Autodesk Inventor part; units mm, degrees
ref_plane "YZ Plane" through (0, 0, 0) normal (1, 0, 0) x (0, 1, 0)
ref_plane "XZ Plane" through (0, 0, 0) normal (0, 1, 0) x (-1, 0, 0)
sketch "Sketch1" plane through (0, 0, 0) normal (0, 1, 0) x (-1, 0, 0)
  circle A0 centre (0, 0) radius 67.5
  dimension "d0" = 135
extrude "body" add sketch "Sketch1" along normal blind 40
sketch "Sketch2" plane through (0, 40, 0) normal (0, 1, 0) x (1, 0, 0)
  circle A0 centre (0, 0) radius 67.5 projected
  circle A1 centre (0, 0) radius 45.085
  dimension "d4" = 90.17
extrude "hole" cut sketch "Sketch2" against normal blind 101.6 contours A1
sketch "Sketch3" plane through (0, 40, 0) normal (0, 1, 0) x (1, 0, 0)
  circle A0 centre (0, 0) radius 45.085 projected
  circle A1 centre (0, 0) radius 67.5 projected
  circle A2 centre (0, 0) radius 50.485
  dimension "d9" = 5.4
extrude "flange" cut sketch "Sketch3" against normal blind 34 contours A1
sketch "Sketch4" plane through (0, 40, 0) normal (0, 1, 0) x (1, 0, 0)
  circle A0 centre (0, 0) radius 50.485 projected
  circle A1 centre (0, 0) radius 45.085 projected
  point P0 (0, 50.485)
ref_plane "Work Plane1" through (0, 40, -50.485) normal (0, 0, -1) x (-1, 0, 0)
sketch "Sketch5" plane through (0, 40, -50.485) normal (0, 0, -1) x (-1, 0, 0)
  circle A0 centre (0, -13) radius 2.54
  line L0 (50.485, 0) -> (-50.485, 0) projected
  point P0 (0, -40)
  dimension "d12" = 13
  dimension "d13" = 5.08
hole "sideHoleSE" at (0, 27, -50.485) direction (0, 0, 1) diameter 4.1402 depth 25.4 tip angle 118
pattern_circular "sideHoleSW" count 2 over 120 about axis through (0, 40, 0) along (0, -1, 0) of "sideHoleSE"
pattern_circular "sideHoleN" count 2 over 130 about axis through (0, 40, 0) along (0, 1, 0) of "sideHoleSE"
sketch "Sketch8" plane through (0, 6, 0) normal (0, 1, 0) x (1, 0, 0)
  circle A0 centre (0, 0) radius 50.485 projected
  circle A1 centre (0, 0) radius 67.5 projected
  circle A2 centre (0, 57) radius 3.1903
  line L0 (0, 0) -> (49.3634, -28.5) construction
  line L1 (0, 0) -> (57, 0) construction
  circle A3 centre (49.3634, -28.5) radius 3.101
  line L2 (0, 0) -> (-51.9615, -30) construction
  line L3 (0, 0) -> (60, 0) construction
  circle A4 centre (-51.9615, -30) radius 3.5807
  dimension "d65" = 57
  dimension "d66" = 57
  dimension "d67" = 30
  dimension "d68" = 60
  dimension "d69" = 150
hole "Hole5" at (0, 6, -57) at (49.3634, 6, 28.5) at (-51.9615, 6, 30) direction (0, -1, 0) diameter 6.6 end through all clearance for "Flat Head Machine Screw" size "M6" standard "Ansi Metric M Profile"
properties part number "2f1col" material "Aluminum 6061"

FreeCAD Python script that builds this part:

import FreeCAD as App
import Part
import Sketcher
Q = App.Units.Quantity

doc = App.newDocument("Part")
body = doc.addObject("PartDesign::Body", "Body")

# Sketch on XZ plane
sketch1 = body.newObject("Sketcher::SketchObject", "Sketch")
sketch1.AttachmentSupport = (doc.getObject("XZ_Plane"), [""])
sketch1.MapMode = "FlatFace"
sketch1.addGeometry(Part.Circle(App.Vector(0, 0, 0), App.Vector(0, 0, 1), 68), False)
sketch1.addConstraint(Sketcher.Constraint("Coincident", 0, 3, -1, 1))
sketch1.addConstraint(Sketcher.Constraint("Diameter", 0, Q("135 mm")))
pad1 = body.newObject("PartDesign::Pad", "Pad")
pad1.Profile = sketch1
pad1.Length = Q("1.5748031 in")
pad1.Reversed = True

# Sketch on XZ plane
sketch2 = body.newObject("Sketcher::SketchObject", "Sketch001")
sketch2.AttachmentSupport = (doc.getObject("XZ_Plane"), [""])
sketch2.MapMode = "FlatFace"
sketch2.AttachmentOffset = App.Placement(App.Vector(0, 0, -1.5748031 * 25.4), App.Rotation())
sketch2.addGeometry(Part.Circle(App.Vector(0, 0, 0), App.Vector(0, 0, 1), 45), False)
sketch2.addConstraint(Sketcher.Constraint("Coincident", 0, 3, -1, 1))
sketch2.addConstraint(Sketcher.Constraint("Diameter", 0, Q("3.55 in")))
pocket1 = body.newObject("PartDesign::Pocket", "Pocket")
pocket1.Profile = sketch2
pocket1.Length = Q("4 in")
pocket1.Reversed = True

# Sketch on XZ plane
sketch3 = body.newObject("Sketcher::SketchObject", "Sketch002")
sketch3.AttachmentSupport = (doc.getObject("XZ_Plane"), [""])
sketch3.MapMode = "FlatFace"
sketch3.AttachmentOffset = App.Placement(App.Vector(0, 0, -1.5748031 * 25.4), App.Rotation())
sketch3.addGeometry(Part.Circle(App.Vector(0, 0, 0), App.Vector(0, 0, 1), 68), False)
sketch3.addGeometry(Part.Circle(App.Vector(0, 0, 0), App.Vector(0, 0, 1), 50), False)
sketch3.addConstraint(Sketcher.Constraint("Coincident", 0, 3, -1, 1))
sketch3.addConstraint(Sketcher.Constraint("Coincident", 1, 3, -1, 1))
sketch3.addConstraint(Sketcher.Constraint("Diameter", 1, Q("3.9752 in")))
sketch3.addConstraint(Sketcher.Constraint("Diameter", 0, Q("135 mm")))
pocket2 = body.newObject("PartDesign::Pocket", "Pocket001")
pocket2.Profile = sketch3
pocket2.Length = 34
pocket2.Reversed = True

# Sketch on XY plane
sketch4 = body.newObject("Sketcher::SketchObject", "Sketch003")
sketch4.AttachmentSupport = (doc.getObject("XY_Plane"), [""])
sketch4.MapMode = "FlatFace"
sketch4.AttachmentOffset = App.Placement(App.Vector(0, 0, -1.9875984 * 25.4), App.Rotation())
sketch4.addGeometry(Part.Circle(App.Vector(0, 27, 0), App.Vector(0, 0, 1), 2.1), False)
sketch4.addConstraint(Sketcher.Constraint("PointOnObject", 0, 3, -2))
sketch4.addConstraint(Sketcher.Constraint("Diameter", 0, Q("0.163 in")))
sketch4.addConstraint(Sketcher.Constraint("DistanceY", -1, 1, 0, 3, Q("1.063 in")))
doc.recompute()
hole = body.newObject("PartDesign::Hole", "Hole")
hole.Profile = sketch4
hole.ThreadType = "None"
hole.Diameter = Q("0.163 in")
hole.DepthType = "Dimension"
hole.Depth = Q("1 in")
hole.DrillPoint = "Angled"
hole.DrillPointAngle = 118
hole.Reversed = True
doc.recompute()

polarpattern = body.newObject("PartDesign::PolarPattern", "PolarPattern")
polarpattern.Originals = [hole]
polarpattern.Axis = (doc.getObject("Y_Axis"), [""])
polarpattern.Angle = 120
polarpattern.Occurrences = 2
polarpattern.Reversed = True
body.Tip = polarpattern
doc.recompute()

polarpattern2 = body.newObject("PartDesign::PolarPattern", "PolarPattern001")
polarpattern2.Originals = [hole]
polarpattern2.Axis = (doc.getObject("Y_Axis"), [""])
polarpattern2.Angle = 130
polarpattern2.Occurrences = 2
body.Tip = polarpattern2

# Sketch on XZ plane
sketch5 = body.newObject("Sketcher::SketchObject", "Sketch004")
sketch5.AttachmentSupport = (doc.getObject("XZ_Plane"), [""])
sketch5.MapMode = "FlatFace"
sketch5.AttachmentOffset = App.Placement(App.Vector(0, 0, -6), App.Rotation())
sketch5.addGeometry(Part.Circle(App.Vector(0, -57, 0), App.Vector(0, 0, 1), 3.3), False)
sketch5.addGeometry(Part.Circle(App.Vector(49.4, 28.5, 0), App.Vector(0, 0, 1), 3.3), False)
sketch5.addGeometry(Part.Circle(App.Vector(-52, 30, 0), App.Vector(0, 0, 1), 3.3), False)
sketch5.addConstraint(Sketcher.Constraint("Equal", 0, 1))
sketch5.addConstraint(Sketcher.Constraint("Equal", 1, 2))
sketch5.addConstraint(Sketcher.Constraint("PointOnObject", 0, 3, -2))
sketch5.addConstraint(Sketcher.Constraint("Diameter", 0, Q("6.6 mm")))
sketch5.addConstraint(Sketcher.Constraint("DistanceY", 0, 3, -1, 1, Q("2.2441 in")))
sketch5.addConstraint(Sketcher.Constraint("DistanceY", -1, 1, 2, 3, Q("1.1811 in")))
sketch5.addConstraint(Sketcher.Constraint("DistanceX", -1, 1, 1, 3, Q("49.3634 mm")))
sketch5.addConstraint(Sketcher.Constraint("DistanceY", -1, 1, 1, 3, Q("28.5 mm")))
sketch5.addConstraint(Sketcher.Constraint("DistanceX", 2, 3, -1, 1, Q("51.9615 mm")))
doc.recompute()
hole2 = body.newObject("PartDesign::Hole", "Hole001")
hole2.Profile = sketch5
hole2.ThreadType = "None"
hole2.Diameter = 6.6
hole2.DepthType = "ThroughAll"
hole2.Reversed = True

doc.recompute()
